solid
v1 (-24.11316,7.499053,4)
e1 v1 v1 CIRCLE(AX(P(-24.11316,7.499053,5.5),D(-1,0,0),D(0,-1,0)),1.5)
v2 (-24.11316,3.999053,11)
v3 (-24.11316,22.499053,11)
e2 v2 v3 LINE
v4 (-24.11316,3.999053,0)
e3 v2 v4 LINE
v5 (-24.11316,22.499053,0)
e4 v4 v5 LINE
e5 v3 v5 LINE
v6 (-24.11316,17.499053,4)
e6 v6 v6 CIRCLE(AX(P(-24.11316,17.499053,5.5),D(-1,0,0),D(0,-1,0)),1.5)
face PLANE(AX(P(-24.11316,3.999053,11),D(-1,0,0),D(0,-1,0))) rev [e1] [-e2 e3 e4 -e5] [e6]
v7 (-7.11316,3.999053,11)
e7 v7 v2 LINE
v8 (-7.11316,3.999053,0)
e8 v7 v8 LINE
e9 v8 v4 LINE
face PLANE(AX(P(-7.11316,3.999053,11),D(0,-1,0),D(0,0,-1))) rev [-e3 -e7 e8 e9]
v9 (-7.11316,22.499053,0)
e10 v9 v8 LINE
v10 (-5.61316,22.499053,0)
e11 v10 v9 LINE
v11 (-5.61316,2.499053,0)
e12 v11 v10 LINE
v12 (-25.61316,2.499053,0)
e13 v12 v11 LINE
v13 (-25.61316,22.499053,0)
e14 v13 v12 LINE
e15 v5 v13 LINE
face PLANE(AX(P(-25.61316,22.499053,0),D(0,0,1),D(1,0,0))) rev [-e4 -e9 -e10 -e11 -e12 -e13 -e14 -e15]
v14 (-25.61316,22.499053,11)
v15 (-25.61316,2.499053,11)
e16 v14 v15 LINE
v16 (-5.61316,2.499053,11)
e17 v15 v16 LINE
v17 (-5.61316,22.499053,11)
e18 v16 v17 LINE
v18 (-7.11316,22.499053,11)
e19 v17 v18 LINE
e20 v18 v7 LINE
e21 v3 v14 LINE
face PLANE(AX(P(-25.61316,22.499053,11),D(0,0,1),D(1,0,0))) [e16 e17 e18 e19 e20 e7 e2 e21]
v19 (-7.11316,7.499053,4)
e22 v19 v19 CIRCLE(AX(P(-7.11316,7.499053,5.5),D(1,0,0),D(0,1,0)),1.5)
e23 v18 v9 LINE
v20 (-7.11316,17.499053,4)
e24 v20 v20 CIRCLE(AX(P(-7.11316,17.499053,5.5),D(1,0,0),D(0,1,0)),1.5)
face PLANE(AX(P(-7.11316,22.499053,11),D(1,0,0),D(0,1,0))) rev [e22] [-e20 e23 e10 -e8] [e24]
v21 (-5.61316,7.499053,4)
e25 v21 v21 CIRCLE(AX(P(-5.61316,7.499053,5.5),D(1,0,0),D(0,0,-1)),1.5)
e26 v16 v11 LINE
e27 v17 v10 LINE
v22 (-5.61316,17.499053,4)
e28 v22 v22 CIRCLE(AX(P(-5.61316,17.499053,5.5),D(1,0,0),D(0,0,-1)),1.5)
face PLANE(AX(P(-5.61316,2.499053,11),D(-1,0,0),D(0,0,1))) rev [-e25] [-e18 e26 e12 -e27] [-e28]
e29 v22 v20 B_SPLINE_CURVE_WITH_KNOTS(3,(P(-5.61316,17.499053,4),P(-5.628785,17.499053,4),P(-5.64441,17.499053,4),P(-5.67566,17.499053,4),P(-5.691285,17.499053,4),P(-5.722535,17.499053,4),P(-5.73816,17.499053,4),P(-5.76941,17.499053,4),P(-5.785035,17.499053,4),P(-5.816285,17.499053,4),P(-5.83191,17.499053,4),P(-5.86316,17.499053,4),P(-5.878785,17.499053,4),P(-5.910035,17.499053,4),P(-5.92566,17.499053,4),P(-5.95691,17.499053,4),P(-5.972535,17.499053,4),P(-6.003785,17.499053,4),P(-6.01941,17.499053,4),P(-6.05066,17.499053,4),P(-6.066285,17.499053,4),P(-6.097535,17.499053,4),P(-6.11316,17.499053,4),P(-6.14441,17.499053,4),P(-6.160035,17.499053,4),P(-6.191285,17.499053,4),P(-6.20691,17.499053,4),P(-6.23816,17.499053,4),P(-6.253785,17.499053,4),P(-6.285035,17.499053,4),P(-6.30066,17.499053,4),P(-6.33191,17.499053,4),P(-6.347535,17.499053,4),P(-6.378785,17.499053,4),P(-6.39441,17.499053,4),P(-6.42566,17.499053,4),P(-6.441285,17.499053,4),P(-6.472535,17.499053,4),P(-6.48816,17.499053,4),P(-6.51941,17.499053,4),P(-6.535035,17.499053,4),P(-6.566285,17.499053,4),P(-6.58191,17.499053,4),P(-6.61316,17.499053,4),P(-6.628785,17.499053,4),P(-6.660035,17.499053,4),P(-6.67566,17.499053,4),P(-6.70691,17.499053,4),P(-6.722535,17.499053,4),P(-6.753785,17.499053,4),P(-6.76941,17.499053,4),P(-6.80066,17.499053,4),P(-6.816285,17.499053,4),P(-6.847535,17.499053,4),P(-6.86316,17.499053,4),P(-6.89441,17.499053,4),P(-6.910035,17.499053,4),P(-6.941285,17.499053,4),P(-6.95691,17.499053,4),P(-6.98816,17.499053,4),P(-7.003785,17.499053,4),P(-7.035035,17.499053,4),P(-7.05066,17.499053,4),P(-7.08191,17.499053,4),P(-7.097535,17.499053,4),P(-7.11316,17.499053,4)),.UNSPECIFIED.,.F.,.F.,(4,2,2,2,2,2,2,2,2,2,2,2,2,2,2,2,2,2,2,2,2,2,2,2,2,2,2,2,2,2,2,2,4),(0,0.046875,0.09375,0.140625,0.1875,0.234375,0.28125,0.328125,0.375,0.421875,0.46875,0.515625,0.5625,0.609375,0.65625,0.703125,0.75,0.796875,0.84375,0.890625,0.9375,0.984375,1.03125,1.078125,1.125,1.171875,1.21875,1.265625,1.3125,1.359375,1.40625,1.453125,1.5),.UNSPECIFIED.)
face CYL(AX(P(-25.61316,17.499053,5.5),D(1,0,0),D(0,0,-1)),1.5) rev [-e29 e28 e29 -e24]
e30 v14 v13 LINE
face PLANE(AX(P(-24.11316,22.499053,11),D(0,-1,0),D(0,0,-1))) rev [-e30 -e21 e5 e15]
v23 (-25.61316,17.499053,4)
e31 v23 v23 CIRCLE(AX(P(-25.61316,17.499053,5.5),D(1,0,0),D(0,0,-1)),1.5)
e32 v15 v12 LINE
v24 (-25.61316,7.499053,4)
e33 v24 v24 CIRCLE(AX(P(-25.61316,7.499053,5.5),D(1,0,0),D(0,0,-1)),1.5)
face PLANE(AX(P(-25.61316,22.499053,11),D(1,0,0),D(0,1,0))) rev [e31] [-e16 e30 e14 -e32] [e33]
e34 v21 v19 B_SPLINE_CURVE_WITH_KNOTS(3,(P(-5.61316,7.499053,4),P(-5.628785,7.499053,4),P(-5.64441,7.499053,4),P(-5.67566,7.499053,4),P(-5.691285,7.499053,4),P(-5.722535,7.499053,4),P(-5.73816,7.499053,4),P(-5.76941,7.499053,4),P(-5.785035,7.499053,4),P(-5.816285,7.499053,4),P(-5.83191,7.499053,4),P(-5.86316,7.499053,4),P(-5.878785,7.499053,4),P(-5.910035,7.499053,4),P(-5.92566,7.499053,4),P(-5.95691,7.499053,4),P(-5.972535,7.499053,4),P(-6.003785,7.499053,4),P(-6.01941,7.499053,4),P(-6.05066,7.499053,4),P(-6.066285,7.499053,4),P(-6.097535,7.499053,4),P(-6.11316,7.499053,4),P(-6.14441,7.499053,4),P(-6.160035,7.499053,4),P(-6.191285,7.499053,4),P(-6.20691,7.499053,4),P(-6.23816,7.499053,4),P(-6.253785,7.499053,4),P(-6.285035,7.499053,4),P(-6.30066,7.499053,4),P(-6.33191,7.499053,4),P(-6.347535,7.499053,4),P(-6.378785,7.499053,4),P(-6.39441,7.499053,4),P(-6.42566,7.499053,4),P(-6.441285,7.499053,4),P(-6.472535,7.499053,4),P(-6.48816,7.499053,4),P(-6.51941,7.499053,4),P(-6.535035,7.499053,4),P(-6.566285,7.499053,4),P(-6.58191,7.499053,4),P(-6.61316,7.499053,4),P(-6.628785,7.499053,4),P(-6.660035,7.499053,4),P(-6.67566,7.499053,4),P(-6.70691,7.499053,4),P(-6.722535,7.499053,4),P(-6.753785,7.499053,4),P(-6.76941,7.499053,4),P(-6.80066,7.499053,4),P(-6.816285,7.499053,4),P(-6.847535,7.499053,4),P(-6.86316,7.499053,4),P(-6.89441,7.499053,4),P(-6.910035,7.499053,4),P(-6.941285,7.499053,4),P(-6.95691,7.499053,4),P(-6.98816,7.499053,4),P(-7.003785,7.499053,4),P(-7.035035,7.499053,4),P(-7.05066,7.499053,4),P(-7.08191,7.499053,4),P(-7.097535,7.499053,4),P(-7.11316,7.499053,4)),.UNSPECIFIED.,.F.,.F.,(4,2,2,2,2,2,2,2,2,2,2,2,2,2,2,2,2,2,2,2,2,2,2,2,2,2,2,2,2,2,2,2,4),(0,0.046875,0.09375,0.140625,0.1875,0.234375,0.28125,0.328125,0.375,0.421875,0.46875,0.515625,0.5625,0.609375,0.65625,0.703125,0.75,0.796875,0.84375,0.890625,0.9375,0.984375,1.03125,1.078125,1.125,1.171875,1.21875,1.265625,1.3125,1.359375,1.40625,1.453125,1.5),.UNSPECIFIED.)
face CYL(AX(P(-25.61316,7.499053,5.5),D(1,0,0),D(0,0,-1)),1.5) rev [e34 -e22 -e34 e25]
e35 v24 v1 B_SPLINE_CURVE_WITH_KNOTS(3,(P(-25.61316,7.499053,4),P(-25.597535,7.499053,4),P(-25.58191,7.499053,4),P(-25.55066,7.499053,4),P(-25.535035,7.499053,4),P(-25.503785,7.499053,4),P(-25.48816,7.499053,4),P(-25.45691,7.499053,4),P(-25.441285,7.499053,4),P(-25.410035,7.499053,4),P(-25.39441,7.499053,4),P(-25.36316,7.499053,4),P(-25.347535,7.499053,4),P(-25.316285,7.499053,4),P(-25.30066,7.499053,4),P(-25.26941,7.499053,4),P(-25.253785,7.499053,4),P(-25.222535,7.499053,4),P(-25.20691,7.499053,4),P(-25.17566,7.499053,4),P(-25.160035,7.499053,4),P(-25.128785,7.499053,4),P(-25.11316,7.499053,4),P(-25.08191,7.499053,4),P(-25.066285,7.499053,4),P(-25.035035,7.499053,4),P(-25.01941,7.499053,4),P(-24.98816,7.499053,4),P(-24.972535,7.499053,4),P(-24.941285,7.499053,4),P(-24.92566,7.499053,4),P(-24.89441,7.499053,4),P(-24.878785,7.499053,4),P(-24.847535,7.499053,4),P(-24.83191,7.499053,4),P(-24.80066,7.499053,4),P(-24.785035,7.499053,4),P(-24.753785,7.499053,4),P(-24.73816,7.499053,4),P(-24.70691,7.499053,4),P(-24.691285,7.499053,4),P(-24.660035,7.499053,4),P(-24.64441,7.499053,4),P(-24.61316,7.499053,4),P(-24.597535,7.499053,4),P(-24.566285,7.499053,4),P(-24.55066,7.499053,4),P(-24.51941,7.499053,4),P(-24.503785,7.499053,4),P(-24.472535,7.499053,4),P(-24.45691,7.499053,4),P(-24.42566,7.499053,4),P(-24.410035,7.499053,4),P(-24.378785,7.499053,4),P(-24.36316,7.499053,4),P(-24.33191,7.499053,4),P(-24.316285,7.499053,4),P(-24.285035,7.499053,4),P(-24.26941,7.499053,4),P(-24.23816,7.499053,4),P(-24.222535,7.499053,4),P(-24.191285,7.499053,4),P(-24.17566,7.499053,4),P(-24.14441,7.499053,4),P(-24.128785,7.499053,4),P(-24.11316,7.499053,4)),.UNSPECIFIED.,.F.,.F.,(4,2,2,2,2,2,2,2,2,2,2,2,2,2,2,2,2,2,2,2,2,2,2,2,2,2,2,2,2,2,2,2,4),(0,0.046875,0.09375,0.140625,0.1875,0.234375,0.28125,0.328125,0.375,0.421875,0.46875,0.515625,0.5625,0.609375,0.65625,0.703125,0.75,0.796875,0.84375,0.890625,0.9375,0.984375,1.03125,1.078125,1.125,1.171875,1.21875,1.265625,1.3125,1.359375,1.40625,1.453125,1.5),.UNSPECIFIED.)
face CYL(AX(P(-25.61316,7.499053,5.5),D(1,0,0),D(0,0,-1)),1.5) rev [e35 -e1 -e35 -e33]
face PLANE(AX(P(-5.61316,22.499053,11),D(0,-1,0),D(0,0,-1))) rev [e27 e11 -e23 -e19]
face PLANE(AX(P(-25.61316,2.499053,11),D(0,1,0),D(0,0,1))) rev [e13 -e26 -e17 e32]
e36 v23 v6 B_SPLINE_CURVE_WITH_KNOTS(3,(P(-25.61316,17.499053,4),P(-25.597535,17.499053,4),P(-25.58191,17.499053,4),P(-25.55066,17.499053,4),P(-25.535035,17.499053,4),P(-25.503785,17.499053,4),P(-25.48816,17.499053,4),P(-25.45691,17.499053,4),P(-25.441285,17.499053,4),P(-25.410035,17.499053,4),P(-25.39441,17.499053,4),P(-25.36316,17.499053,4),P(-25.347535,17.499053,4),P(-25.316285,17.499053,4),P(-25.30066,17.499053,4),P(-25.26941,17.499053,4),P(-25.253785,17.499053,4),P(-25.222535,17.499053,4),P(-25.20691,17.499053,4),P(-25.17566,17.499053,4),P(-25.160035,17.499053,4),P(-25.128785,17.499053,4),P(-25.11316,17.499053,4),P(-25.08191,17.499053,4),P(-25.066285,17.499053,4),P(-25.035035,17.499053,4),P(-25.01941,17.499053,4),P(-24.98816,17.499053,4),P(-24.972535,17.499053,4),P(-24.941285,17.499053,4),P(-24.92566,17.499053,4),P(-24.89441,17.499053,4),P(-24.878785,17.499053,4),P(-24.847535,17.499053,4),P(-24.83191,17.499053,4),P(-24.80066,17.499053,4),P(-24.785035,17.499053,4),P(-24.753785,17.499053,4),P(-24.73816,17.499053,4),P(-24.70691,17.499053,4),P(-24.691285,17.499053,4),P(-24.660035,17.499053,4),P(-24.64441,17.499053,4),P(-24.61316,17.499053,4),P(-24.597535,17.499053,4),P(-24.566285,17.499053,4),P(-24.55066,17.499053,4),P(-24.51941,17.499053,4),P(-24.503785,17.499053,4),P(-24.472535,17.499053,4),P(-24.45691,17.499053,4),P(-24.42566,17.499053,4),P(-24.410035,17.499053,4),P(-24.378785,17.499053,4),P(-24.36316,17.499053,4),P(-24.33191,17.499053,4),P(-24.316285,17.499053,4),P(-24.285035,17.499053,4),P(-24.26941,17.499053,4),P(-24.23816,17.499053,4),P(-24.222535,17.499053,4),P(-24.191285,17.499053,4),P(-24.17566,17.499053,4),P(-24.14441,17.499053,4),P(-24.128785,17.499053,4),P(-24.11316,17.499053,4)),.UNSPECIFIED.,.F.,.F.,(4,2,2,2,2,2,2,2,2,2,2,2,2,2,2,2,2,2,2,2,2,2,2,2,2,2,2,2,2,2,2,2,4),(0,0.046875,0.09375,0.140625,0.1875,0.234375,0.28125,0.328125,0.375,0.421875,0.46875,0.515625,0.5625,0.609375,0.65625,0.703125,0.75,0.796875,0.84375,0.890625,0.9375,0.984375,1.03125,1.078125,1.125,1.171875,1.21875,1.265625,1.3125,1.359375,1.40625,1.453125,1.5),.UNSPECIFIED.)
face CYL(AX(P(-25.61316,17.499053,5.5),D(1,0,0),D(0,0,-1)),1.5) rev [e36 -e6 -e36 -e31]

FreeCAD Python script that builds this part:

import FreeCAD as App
import Part
import Sketcher
Q = App.Units.Quantity


def add_polygon(sketch, points):
    """Adds a closed chain of lines whose ends are joined by coincident constraints."""
    first, n = sketch.GeometryCount, len(points)
    for a, b in zip(points, points[1:] + points[:1]):
        sketch.addGeometry(Part.LineSegment(App.Vector(*a, 0), App.Vector(*b, 0)), False)
    for i in range(n):
        sketch.addConstraint(Sketcher.Constraint("Coincident", first + i, 2, first + (i + 1) % n, 1))

doc = App.newDocument("Part")
body = doc.addObject("PartDesign::Body", "Body")

sketch1 = body.newObject("Sketcher::SketchObject", "Sketch")
sketch1.AttachmentSupport = (doc.getObject("XY_Plane"), [""])
sketch1.MapMode = "FlatFace"
add_polygon(sketch1, [(-25.61316, 22.499053), (-25.61316, 2.499053), (-5.61316, 2.499053), (-5.61316, 22.499053), (-7.11316, 22.499053), (-7.11316, 3.999053), (-24.11316, 3.999053), (-24.11316, 22.499053)])
sketch1.addConstraint(Sketcher.Constraint("Vertical", 0))
sketch1.addConstraint(Sketcher.Constraint("Horizontal", 1))
sketch1.addConstraint(Sketcher.Constraint("Vertical", 2))
sketch1.addConstraint(Sketcher.Constraint("Horizontal", 3))
sketch1.addConstraint(Sketcher.Constraint("Vertical", 4))
sketch1.addConstraint(Sketcher.Constraint("Horizontal", 5))
sketch1.addConstraint(Sketcher.Constraint("Vertical", 6))
sketch1.addConstraint(Sketcher.Constraint("Horizontal", 7))
sketch1.addConstraint(Sketcher.Constraint("Horizontal", 3, 2, 6, 2))
sketch1.addConstraint(Sketcher.Constraint("Equal", 3, 7))
sketch1.addConstraint(Sketcher.Constraint("Equal", 1, 0))
sketch1.addConstraint(Sketcher.Constraint("DistanceX", 1, 1, 1, 2, Q("20 mm")))
sketch1.addConstraint(Sketcher.Constraint("DistanceX", 5, 2, 5, 1, Q("17 mm")))
sketch1.addConstraint(Sketcher.Constraint("DistanceY", 4, 2, 4, 1, Q("18.5 mm")))
sketch1.addConstraint(Sketcher.Constraint("DistanceX", 0, 2, -1, 1, Q("25.61316 mm")))
sketch1.addConstraint(Sketcher.Constraint("DistanceY", -1, 1, 0, 2, Q("2.499053 mm")))
pad1 = body.newObject("PartDesign::Pad", "Pad")
pad1.Profile = sketch1
pad1.Length = 11

sketch2 = body.newObject("Sketcher::SketchObject", "Sketch001")
sketch2.AttachmentSupport = (doc.getObject("YZ_Plane"), [""])
sketch2.MapMode = "FlatFace"
sketch2.AttachmentOffset = App.Placement(App.Vector(0, 0, -5.61316), App.Rotation())
sketch2.addGeometry(Part.Circle(App.Vector(7.499053, 5.5, 0), App.Vector(0, 0, 1), 1.5), False)
sketch2.addGeometry(Part.Circle(App.Vector(17.499053, 5.5, 0), App.Vector(0, 0, 1), 1.5), False)
sketch2.addConstraint(Sketcher.Constraint("Equal", 0, 1))
sketch2.addConstraint(Sketcher.Constraint("Horizontal", 0, 3, 1, 3))
sketch2.addConstraint(Sketcher.Constraint("Diameter", 0, Q("3 mm")))
sketch2.addConstraint(Sketcher.Constraint("DistanceX", 0, 3, 1, 3, Q("10 mm")))
sketch2.addConstraint(Sketcher.Constraint("DistanceY", -1, 1, 0, 3, Q("5.5 mm")))
sketch2.addConstraint(Sketcher.Constraint("DistanceX", -1, 1, 0, 3, Q("7.499053 mm")))
pocket1 = body.newObject("PartDesign::Pocket", "Pocket")
pocket1.Profile = sketch2
pocket1.Type = "ThroughAll"

doc.recompute()
